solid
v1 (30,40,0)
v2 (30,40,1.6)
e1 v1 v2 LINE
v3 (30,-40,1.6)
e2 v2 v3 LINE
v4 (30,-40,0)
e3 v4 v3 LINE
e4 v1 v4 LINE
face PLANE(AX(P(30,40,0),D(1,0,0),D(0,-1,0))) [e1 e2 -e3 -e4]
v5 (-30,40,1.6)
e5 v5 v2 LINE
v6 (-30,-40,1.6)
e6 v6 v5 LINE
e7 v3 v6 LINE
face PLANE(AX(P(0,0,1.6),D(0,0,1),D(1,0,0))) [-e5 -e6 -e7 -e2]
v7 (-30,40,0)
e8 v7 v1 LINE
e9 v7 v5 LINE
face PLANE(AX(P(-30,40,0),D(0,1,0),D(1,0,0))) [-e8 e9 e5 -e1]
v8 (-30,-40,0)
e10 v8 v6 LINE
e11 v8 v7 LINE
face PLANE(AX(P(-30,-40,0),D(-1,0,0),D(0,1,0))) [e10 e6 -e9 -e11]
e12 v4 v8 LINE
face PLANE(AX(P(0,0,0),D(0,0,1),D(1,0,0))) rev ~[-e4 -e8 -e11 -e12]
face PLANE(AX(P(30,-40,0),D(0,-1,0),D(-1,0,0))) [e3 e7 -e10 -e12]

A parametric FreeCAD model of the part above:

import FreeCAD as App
import Part
import Sketcher
Q = App.Units.Quantity


def add_polygon(sketch, points):
    """Adds a closed chain of lines whose ends are joined by coincident constraints."""
    first, n = sketch.GeometryCount, len(points)
    for a, b in zip(points, points[1:] + points[:1]):
        sketch.addGeometry(Part.LineSegment(App.Vector(*a, 0), App.Vector(*b, 0)), False)
    for i in range(n):
        sketch.addConstraint(Sketcher.Constraint("Coincident", first + i, 2, first + (i + 1) % n, 1))

doc = App.newDocument("Part")
params = doc.addObject("Spreadsheet::Sheet", "Params")
for row, (alias, value) in enumerate([
    ("pad1_length", "0.0629921 in"),
], start=1):
    params.set(f"A{row}", alias)
    params.set(f"B{row}", "=" + value)
    params.setAlias(f"B{row}", alias)

body = doc.addObject("PartDesign::Body", "Body")

sketch1 = doc.addObject("Sketcher::SketchObject", "Sketch")
body.addObject(sketch1)
sketch1.AttachmentSupport = (doc.XY_Plane, [""])
sketch1.MapMode = "FlatFace"
add_polygon(sketch1, [(30, 40), (-30, 40), (-30, -40), (30, -40)])
sketch1.addConstraint([
    Sketcher.Constraint("Horizontal", 0),
    Sketcher.Constraint("Vertical", 1),
    Sketcher.Constraint("Horizontal", 2),
    Sketcher.Constraint("Vertical", 3),
    Sketcher.Constraint("Symmetric", 0, 2, 2, 2, -1, 1),
    Sketcher.Constraint("DistanceX", 0, 2, 0, 1, Q("2.3622 in")),
    Sketcher.Constraint("DistanceY", 1, 2, 1, 1, Q("3.1496 in")),
])
pad1 = doc.addObject("PartDesign::Pad", "Pad")
body.addObject(pad1)
pad1.Profile = sketch1
pad1.setExpression("Length", "Params.pad1_length")

doc.recompute()
